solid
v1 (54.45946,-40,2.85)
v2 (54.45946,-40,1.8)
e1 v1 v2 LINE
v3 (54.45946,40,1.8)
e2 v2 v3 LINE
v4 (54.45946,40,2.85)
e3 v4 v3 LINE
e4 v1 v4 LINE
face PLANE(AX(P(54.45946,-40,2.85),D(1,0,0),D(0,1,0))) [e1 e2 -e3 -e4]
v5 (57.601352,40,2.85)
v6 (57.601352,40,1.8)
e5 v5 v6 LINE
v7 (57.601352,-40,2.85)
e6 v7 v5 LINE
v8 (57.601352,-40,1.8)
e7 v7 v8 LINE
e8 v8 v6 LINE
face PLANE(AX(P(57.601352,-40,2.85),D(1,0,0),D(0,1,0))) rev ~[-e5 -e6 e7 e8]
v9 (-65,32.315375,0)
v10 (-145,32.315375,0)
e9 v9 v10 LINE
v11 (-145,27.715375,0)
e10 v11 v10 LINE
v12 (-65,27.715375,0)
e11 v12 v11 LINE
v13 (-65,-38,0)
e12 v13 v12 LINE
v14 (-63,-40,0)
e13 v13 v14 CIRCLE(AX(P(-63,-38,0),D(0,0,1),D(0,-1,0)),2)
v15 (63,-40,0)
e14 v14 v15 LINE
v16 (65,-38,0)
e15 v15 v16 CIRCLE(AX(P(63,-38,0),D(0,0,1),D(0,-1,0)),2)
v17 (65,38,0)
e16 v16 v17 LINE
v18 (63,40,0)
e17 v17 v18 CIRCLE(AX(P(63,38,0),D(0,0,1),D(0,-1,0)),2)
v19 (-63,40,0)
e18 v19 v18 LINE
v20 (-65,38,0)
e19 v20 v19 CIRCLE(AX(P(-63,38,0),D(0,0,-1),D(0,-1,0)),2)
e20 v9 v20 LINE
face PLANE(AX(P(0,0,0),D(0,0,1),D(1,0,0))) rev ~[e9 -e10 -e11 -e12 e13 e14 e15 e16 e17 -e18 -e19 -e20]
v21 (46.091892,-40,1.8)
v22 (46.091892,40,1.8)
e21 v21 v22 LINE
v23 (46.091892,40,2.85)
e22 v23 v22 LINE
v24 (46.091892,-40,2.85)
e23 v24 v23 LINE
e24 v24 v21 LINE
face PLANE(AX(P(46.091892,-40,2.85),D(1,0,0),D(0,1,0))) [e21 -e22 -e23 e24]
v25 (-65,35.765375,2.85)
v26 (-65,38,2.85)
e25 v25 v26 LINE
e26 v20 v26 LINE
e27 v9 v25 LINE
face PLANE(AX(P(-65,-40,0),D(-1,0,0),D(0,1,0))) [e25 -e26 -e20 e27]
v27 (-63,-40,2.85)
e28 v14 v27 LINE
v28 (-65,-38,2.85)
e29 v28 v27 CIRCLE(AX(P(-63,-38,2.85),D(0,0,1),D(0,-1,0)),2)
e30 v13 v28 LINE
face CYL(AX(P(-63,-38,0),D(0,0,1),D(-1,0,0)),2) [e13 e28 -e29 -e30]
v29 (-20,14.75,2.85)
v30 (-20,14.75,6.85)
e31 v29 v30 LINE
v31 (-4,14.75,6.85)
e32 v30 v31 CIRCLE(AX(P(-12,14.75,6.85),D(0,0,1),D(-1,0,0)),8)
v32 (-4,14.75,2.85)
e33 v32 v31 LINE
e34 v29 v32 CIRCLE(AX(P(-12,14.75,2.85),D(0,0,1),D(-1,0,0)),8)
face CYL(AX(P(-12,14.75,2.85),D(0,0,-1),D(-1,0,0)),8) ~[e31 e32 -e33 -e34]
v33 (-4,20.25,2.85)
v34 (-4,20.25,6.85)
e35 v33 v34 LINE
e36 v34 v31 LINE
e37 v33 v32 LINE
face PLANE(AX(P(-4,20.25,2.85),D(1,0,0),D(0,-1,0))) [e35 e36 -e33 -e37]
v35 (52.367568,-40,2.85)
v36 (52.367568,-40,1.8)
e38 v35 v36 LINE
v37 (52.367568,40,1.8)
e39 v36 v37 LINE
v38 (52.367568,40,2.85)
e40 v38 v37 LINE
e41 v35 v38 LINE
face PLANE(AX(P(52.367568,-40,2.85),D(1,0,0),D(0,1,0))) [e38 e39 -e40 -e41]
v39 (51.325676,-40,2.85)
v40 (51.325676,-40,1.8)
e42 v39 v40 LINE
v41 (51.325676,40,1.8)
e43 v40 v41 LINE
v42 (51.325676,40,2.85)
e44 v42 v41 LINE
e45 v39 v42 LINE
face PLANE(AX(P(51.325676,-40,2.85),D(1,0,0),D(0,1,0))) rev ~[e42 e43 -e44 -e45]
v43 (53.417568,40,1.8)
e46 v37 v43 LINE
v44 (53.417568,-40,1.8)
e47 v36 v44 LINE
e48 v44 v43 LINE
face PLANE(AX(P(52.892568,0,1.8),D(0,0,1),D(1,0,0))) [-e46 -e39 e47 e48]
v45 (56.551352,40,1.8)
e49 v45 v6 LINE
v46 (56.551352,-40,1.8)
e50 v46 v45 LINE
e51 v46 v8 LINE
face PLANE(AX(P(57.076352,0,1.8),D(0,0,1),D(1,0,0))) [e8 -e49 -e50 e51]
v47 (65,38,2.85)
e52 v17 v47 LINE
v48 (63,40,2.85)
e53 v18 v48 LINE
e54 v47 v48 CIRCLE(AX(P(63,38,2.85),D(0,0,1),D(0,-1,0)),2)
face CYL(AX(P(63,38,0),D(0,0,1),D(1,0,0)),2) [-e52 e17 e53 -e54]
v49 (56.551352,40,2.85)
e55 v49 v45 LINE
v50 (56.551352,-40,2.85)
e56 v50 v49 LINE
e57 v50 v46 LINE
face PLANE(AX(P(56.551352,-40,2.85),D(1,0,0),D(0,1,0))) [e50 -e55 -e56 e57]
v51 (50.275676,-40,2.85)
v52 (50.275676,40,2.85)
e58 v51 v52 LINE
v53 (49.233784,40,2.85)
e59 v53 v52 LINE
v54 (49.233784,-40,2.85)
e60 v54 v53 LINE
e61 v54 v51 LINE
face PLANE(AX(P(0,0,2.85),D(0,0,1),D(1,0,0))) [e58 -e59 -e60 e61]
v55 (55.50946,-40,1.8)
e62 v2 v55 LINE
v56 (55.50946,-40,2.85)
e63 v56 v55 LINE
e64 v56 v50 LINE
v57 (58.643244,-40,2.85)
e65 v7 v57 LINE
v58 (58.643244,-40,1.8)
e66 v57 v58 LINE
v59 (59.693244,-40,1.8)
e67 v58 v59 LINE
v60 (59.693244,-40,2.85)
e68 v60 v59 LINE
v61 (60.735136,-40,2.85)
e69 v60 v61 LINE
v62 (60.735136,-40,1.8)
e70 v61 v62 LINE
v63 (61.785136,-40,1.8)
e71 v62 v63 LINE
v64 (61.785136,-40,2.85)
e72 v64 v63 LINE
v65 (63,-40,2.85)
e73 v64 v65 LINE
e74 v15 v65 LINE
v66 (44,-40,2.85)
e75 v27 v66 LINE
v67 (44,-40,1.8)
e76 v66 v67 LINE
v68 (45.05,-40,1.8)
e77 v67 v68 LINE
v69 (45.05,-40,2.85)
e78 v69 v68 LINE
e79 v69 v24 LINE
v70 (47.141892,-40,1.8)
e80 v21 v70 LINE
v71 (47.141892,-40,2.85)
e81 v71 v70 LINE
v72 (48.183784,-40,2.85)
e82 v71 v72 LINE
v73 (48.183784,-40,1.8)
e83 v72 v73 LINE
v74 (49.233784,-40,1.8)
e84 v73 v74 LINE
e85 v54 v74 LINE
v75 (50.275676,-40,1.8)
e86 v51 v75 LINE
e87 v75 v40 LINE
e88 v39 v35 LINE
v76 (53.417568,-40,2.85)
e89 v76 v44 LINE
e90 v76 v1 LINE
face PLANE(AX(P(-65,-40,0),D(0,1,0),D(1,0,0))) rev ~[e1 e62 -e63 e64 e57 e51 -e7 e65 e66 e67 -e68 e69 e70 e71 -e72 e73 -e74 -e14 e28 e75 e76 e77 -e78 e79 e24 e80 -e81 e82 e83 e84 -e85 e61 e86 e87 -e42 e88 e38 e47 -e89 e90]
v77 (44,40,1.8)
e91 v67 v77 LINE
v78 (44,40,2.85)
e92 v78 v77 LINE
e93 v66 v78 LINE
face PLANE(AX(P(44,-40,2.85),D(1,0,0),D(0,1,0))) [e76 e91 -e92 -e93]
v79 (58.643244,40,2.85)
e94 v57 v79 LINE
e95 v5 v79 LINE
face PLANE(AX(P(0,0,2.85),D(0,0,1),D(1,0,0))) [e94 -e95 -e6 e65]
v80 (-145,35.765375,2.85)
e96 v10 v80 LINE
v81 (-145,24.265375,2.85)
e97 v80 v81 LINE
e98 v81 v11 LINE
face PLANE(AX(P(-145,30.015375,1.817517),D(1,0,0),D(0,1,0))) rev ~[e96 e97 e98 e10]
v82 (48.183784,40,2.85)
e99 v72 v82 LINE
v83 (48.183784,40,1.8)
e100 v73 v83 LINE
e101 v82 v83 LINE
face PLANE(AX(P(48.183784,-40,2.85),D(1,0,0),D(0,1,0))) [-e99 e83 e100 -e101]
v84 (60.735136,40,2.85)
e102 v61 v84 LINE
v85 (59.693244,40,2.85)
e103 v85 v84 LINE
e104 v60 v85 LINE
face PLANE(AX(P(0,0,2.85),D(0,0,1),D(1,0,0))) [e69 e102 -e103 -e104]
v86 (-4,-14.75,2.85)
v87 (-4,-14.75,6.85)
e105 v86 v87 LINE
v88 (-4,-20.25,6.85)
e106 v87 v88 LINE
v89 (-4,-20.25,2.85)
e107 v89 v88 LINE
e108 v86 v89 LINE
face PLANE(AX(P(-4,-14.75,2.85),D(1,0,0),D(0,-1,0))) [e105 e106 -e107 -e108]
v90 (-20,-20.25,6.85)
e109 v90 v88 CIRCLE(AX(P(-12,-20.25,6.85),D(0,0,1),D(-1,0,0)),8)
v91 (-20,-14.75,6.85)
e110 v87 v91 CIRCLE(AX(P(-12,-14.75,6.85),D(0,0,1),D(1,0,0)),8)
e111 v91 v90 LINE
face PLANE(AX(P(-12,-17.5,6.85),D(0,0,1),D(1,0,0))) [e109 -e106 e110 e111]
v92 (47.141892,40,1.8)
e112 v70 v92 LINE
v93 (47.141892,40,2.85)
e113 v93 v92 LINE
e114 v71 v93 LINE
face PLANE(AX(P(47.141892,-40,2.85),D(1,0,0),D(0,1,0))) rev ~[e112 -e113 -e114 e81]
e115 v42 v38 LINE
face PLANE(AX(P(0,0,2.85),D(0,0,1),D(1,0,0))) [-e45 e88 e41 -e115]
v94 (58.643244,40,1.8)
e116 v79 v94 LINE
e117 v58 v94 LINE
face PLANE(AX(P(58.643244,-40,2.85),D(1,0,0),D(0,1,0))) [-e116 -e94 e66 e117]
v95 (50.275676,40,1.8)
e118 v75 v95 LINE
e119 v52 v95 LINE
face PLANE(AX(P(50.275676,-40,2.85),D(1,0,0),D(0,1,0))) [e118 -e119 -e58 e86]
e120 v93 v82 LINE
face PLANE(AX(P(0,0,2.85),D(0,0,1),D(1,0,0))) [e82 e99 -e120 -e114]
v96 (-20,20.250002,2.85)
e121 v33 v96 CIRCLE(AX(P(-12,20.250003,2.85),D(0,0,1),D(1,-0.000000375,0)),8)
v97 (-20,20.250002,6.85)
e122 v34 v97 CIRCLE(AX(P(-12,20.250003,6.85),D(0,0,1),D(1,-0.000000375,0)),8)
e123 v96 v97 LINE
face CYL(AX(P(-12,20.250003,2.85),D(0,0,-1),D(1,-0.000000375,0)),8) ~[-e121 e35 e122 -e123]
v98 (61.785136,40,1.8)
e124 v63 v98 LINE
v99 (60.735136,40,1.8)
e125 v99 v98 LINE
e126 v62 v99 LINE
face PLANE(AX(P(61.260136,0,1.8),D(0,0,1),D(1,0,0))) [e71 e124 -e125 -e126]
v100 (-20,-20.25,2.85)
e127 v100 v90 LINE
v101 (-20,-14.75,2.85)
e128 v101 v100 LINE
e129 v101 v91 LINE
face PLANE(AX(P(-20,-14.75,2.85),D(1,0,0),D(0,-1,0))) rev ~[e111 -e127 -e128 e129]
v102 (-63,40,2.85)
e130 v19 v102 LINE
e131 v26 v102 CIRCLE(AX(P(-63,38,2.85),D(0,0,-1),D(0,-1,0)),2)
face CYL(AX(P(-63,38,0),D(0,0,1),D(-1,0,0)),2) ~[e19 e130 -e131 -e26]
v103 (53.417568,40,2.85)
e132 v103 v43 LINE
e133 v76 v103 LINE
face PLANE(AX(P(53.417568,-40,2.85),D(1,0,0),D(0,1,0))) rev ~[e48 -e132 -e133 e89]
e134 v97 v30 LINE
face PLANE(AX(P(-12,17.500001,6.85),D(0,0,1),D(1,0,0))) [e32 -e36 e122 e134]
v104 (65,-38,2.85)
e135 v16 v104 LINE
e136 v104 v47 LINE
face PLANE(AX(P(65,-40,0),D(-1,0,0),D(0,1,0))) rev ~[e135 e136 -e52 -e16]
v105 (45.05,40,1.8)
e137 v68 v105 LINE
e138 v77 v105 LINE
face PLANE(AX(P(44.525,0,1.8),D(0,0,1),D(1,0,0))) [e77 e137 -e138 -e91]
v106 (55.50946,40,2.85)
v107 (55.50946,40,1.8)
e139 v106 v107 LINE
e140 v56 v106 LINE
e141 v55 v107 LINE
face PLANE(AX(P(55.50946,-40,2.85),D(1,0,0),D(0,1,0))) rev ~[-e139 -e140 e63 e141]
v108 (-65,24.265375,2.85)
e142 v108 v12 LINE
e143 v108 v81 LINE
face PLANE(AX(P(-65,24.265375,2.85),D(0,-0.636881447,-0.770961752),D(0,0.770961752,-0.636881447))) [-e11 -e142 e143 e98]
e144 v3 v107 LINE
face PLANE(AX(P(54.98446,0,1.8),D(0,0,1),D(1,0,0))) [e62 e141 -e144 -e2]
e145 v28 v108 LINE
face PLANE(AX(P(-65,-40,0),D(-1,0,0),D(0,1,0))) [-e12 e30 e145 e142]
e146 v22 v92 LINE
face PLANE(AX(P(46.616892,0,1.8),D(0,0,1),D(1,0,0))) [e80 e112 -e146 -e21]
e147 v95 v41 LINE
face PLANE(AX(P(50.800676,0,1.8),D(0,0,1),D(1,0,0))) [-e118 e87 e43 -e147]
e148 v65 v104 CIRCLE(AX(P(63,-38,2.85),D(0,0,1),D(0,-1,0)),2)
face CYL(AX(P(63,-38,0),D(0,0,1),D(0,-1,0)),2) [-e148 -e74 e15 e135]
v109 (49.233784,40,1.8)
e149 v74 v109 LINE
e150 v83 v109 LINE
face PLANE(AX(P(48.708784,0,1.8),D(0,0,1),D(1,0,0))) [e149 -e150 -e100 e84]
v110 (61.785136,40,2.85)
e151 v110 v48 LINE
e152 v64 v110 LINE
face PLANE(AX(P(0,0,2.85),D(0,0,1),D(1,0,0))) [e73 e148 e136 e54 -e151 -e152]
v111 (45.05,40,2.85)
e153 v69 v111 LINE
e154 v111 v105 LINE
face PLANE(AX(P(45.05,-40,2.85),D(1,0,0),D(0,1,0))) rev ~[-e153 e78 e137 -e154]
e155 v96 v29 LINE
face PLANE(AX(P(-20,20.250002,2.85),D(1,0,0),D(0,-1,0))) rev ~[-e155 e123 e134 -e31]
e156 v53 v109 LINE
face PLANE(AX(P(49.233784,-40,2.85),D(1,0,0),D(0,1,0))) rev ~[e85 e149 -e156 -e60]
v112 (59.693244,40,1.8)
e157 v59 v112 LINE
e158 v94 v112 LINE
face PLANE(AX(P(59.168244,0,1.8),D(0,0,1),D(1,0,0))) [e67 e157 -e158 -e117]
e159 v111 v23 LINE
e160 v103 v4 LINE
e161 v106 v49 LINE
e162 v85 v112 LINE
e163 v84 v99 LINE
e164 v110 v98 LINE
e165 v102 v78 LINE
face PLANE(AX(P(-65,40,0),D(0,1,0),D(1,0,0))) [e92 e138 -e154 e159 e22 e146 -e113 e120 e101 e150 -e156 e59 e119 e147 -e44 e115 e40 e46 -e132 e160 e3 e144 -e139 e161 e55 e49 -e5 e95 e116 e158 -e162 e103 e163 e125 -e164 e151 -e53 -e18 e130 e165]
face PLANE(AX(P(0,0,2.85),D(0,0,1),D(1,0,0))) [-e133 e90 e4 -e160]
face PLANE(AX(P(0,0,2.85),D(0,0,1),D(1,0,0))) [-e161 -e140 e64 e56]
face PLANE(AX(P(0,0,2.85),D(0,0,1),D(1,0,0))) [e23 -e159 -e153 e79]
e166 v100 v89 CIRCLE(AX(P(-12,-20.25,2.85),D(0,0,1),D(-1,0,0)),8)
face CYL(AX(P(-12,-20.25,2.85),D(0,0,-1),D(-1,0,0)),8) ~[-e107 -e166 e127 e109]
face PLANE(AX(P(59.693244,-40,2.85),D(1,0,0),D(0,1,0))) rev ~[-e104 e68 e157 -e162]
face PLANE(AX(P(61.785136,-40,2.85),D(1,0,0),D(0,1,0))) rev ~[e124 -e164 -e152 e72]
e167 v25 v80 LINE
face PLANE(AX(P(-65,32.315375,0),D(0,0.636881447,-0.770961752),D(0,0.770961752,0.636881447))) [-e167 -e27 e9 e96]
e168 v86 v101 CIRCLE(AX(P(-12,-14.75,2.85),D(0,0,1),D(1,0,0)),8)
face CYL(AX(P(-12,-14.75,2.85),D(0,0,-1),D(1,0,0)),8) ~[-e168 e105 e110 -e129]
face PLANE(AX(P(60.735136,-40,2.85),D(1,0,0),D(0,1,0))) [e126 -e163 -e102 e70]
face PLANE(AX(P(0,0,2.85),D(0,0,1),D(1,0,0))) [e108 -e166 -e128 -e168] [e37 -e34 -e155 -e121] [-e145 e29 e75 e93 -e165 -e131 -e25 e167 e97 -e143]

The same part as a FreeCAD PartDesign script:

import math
import FreeCAD as App
import Part
import Sketcher
from FreeCAD import Vector
Q = App.Units.Quantity


def edges_at(feature, points):
    """Names of the edges that pass closest to the given points."""
    edges = feature.Shape.Edges
    near = lambda p: min(range(len(edges)), key=lambda i: edges[i].distToShape(Part.Vertex(*p))[0])
    return sorted({f"Edge{near(p) + 1}" for p in points})


def add_polygon(sketch, points):
    """Adds a closed chain of lines whose ends are joined by coincident constraints."""
    first, n = sketch.GeometryCount, len(points)
    for a, b in zip(points, points[1:] + points[:1]):
        sketch.addGeometry(Part.LineSegment(App.Vector(*a, 0), App.Vector(*b, 0)), False)
    for i in range(n):
        sketch.addConstraint(Sketcher.Constraint("Coincident", first + i, 2, first + (i + 1) % n, 1))

doc = App.newDocument("Part")
params = doc.addObject("Spreadsheet::Sheet", "Params")
for row, (alias, value) in enumerate([
    ("sketch1_width", "130 mm"),
    ("sketch1_height", "80 mm"),
    ("pad1_length", "2.85 mm"),
    ("sketch2_radius", "8 mm"),
    ("sketch2_height", "5.5 mm"),
    ("pad2_length", "4 mm"),
    ("sketch3_width", "11.5 mm"),
    ("sketch3_width2", "4.6 mm"),
    ("pad3_length", "80 mm"),
    ("fillet_radius", "2 mm"),
    ("sketch4_height", "80 mm"),
    ("sketch4_width", "1.05 mm"),
    ("pocket1_length", "1.05 mm"),
], start=1):
    params.set(f"A{row}", alias)
    params.set(f"B{row}", "=" + value)
    params.setAlias(f"B{row}", alias)

body = doc.addObject("PartDesign::Body", "Body")

sketch1 = doc.addObject("Sketcher::SketchObject", "Sketch")
body.addObject(sketch1)
sketch1.AttachmentSupport = (doc.XY_Plane, [""])
sketch1.MapMode = "FlatFace"
add_polygon(sketch1, [(-65, 40), (-65, -40), (65, -40), (65, 40)])
sketch1.addConstraint([
    Sketcher.Constraint("Vertical", 0),
    Sketcher.Constraint("Horizontal", 1),
    Sketcher.Constraint("Vertical", 2),
    Sketcher.Constraint("Horizontal", 3),
    Sketcher.Constraint("Symmetric", 0, 2, 2, 2, -1, 1),
    Sketcher.Constraint("DistanceX", 1, 1, 1, 2, Q("130 mm")),
    Sketcher.Constraint("DistanceY", 0, 2, 0, 1, Q("80 mm")),
])
sketch1.setExpression("Constraints[9]", "Params.sketch1_width")
sketch1.setExpression("Constraints[10]", "Params.sketch1_height")
pad1 = doc.addObject("PartDesign::Pad", "Pad")
body.addObject(pad1)
pad1.Profile = sketch1
pad1.setExpression("Length", "Params.pad1_length")

sketch2 = doc.addObject("Sketcher::SketchObject", "Sketch001")
body.addObject(sketch2)
sketch2.AttachmentSupport = (doc.XY_Plane, [""])
sketch2.MapMode = "FlatFace"
sketch2.AttachmentOffset = App.Placement(Vector(0, 0, 2.85), App.Rotation())
sketch2.addGeometry([
    Part.ArcOfCircle(Part.Circle(Vector(-12, 15, 0), Vector(0, 0, 1), 8), math.radians(180), math.radians(360)),
    Part.LineSegment(Vector(-4, 15, 0), Vector(-4, 20, 0)),
    Part.ArcOfCircle(Part.Circle(Vector(-12, 20, 0), Vector(0, 0, 1), 8), math.radians(0), math.radians(180)),
    Part.LineSegment(Vector(-20, 20, 0), Vector(-20, 15, 0)),
    Part.ArcOfCircle(Part.Circle(Vector(-12, -20, 0), Vector(0, 0, 1), 8), math.radians(180), math.radians(360)),
    Part.LineSegment(Vector(-4, -20, 0), Vector(-4, -15, 0)),
    Part.ArcOfCircle(Part.Circle(Vector(-12, -15, 0), Vector(0, 0, 1), 8), math.radians(0), math.radians(180)),
    Part.LineSegment(Vector(-20, -15, 0), Vector(-20, -20, 0)),
], False)
sketch2.addConstraint([
    Sketcher.Constraint("Tangent", 0, 2, 1, 1),
    Sketcher.Constraint("Tangent", 1, 2, 2, 1),
    Sketcher.Constraint("Tangent", 2, 2, 3, 1),
    Sketcher.Constraint("Tangent", 3, 2, 0, 1),
    Sketcher.Constraint("Tangent", 4, 2, 5, 1),
    Sketcher.Constraint("Tangent", 5, 2, 6, 1),
    Sketcher.Constraint("Tangent", 6, 2, 7, 1),
    Sketcher.Constraint("Tangent", 7, 2, 4, 1),
    Sketcher.Constraint("Vertical", 1),
    Sketcher.Constraint("Vertical", 3),
    Sketcher.Constraint("Vertical", 5),
    Sketcher.Constraint("Vertical", 7),
    Sketcher.Constraint("Equal", 2, 4),
    Sketcher.Constraint("Symmetric", 2, 3, 4, 3, -1),
    Sketcher.Constraint("Equal", 3, 5),
    Sketcher.Constraint("Radius", 0, Q("8 mm")),
    Sketcher.Constraint("DistanceY", 1, 1, 1, 2, Q("5.5 mm")),
    Sketcher.Constraint("DistanceX", 0, 3, -1, 1, Q("12 mm")),
    Sketcher.Constraint("DistanceY", 4, 3, 0, 3, Q("35 mm")),
])
sketch2.setExpression("Constraints[15]", "Params.sketch2_radius")
sketch2.setExpression("Constraints[16]", "Params.sketch2_height")
pad2 = doc.addObject("PartDesign::Pad", "Pad001")
body.addObject(pad2)
pad2.Profile = sketch2
pad2.setExpression("Length", "Params.pad2_length")

sketch3 = doc.addObject("Sketcher::SketchObject", "Sketch002")
body.addObject(sketch3)
sketch3.AttachmentSupport = (doc.YZ_Plane, [""])
sketch3.MapMode = "FlatFace"
sketch3.AttachmentOffset = App.Placement(Vector(0, 0, -65), App.Rotation())
add_polygon(sketch3, [(24.3, 2.9), (35.8, 2.9), (32.3, 0), (27.7, 0)])
sketch3.addConstraint([
    Sketcher.Constraint("Horizontal", 0),
    Sketcher.Constraint("Horizontal", 2),
    Sketcher.Constraint("PointOnObject", 1, 2, -1),
    Sketcher.Constraint("Equal", 1, 3),
    Sketcher.Constraint("DistanceX", 0, 1, 0, 2, Q("11.5 mm")),
    Sketcher.Constraint("DistanceX", 2, 2, 2, 1, Q("4.6 mm")),
    Sketcher.Constraint("DistanceY", -1, 1, 0, 2, Q("2.85 mm")),
    Sketcher.Constraint("DistanceX", -1, 1, 0, 2, Q("35.765375 mm")),
])
sketch3.setExpression("Constraints[8]", "Params.sketch3_width")
sketch3.setExpression("Constraints[9]", "Params.sketch3_width2")
pad3 = doc.addObject("PartDesign::Pad", "Pad002")
body.addObject(pad3)
pad3.Profile = sketch3
pad3.setExpression("Length", "Params.pad3_length")
pad3.Reversed = True
doc.recompute()

fillet = doc.addObject("PartDesign::Fillet", "Fillet")
body.addObject(fillet)
fillet.Base = (pad3, edges_at(pad3, [
    (-65, -40, 1.425),
    (65, -40, 1.425),
    (65, 40, 1.425),
    (-65, 40, 1.425),
]))
fillet.setExpression("Radius", "Params.fillet_radius")

sketch4 = doc.addObject("Sketcher::SketchObject", "Sketch003")
body.addObject(sketch4)
sketch4.AttachmentSupport = (doc.XY_Plane, [""])
sketch4.MapMode = "FlatFace"
sketch4.AttachmentOffset = App.Placement(Vector(0, 0, 2.85), App.Rotation())
add_polygon(sketch4, [(44, 40), (44, -40), (45, -40), (45, 40)])
add_polygon(sketch4, [(46.1, 40), (46.1, -40), (47.1, -40), (47.1, 40)])
add_polygon(sketch4, [(48.2, 40), (48.2, -40), (49.2, -40), (49.2, 40)])
add_polygon(sketch4, [(50.3, 40), (50.3, -40), (51.3, -40), (51.3, 40)])
add_polygon(sketch4, [(52.4, 40), (52.4, -40), (53.4, -40), (53.4, 40)])
add_polygon(sketch4, [(54.5, 40), (54.5, -40), (55.5, -40), (55.5, 40)])
add_polygon(sketch4, [(56.6, 40), (56.6, -40), (57.6, -40), (57.6, 40)])
add_polygon(sketch4, [(58.6, 40), (58.6, -40), (59.7, -40), (59.7, 40)])
add_polygon(sketch4, [(60.7, 40), (60.7, -40), (61.8, -40), (61.8, 40)])
sketch4.addConstraint([
    Sketcher.Constraint("Vertical", 0),
    Sketcher.Constraint("Horizontal", 1),
    Sketcher.Constraint("Vertical", 2),
    Sketcher.Constraint("Horizontal", 3),
    Sketcher.Constraint("Vertical", 4),
    Sketcher.Constraint("Horizontal", 5),
    Sketcher.Constraint("Vertical", 6),
    Sketcher.Constraint("Horizontal", 7),
    Sketcher.Constraint("Vertical", 8),
    Sketcher.Constraint("Horizontal", 9),
    Sketcher.Constraint("Vertical", 10),
    Sketcher.Constraint("Horizontal", 11),
    Sketcher.Constraint("Vertical", 12),
    Sketcher.Constraint("Horizontal", 13),
    Sketcher.Constraint("Vertical", 14),
    Sketcher.Constraint("Horizontal", 15),
    Sketcher.Constraint("Vertical", 16),
    Sketcher.Constraint("Horizontal", 17),
    Sketcher.Constraint("Vertical", 18),
    Sketcher.Constraint("Horizontal", 19),
    Sketcher.Constraint("Vertical", 20),
    Sketcher.Constraint("Horizontal", 21),
    Sketcher.Constraint("Vertical", 22),
    Sketcher.Constraint("Horizontal", 23),
    Sketcher.Constraint("Vertical", 24),
    Sketcher.Constraint("Horizontal", 25),
    Sketcher.Constraint("Vertical", 26),
    Sketcher.Constraint("Horizontal", 27),
    Sketcher.Constraint("Vertical", 28),
    Sketcher.Constraint("Horizontal", 29),
    Sketcher.Constraint("Vertical", 30),
    Sketcher.Constraint("Horizontal", 31),
    Sketcher.Constraint("Vertical", 32),
    Sketcher.Constraint("Horizontal", 33),
    Sketcher.Constraint("Vertical", 34),
    Sketcher.Constraint("Horizontal", 35),
    Sketcher.Constraint("Horizontal", 1, 2, 4, 2),
    Sketcher.Constraint("Horizontal", 3, 2, 6, 2),
    Sketcher.Constraint("Horizontal", 5, 2, 8, 2),
    Sketcher.Constraint("Horizontal", 7, 2, 10, 2),
    Sketcher.Constraint("Horizontal", 9, 2, 12, 2),
    Sketcher.Constraint("Horizontal", 11, 2, 14, 2),
    Sketcher.Constraint("Horizontal", 13, 2, 16, 2),
    Sketcher.Constraint("Horizontal", 15, 2, 18, 2),
    Sketcher.Constraint("Horizontal", 17, 2, 20, 2),
    Sketcher.Constraint("Horizontal", 19, 2, 22, 2),
    Sketcher.Constraint("Horizontal", 21, 2, 24, 2),
    Sketcher.Constraint("Horizontal", 23, 2, 26, 2),
    Sketcher.Constraint("Horizontal", 25, 2, 28, 2),
    Sketcher.Constraint("Horizontal", 27, 2, 30, 2),
    Sketcher.Constraint("Horizontal", 29, 2, 32, 2),
    Sketcher.Constraint("Horizontal", 31, 2, 34, 2),
    Sketcher.Constraint("Equal", 3, 5),
    Sketcher.Constraint("Equal", 7, 9),
    Sketcher.Constraint("Equal", 11, 13),
    Sketcher.Constraint("Equal", 15, 17),
    Sketcher.Constraint("Equal", 19, 21),
    Sketcher.Constraint("Equal", 23, 25),
    Sketcher.Constraint("Equal", 27, 29),
    Sketcher.Constraint("Equal", 31, 33),
    Sketcher.Constraint("DistanceY", 0, 2, 0, 1, Q("80 mm")),
    Sketcher.Constraint("DistanceX", -1, 1, 0, 2, Q("44 mm")),
    Sketcher.Constraint("DistanceY", 0, 2, -1, 1, Q("40 mm")),
    Sketcher.Constraint("DistanceX", 1, 1, 1, 2, Q("1.05 mm")),
    Sketcher.Constraint("DistanceX", -1, 1, 17, 2, Q("53.417568 mm")),
    Sketcher.Constraint("DistanceX", -1, 1, 20, 2, Q("54.45946 mm")),
    Sketcher.Constraint("DistanceX", 0, 2, 5, 2, Q("3.141892 mm")),
    Sketcher.Constraint("DistanceX", 4, 2, 9, 2, Q("3.141892 mm")),
    Sketcher.Constraint("DistanceX", 9, 2, 12, 2, Q("1.041892 mm")),
    Sketcher.Constraint("DistanceX", 20, 2, 25, 2, Q("3.141892 mm")),
    Sketcher.Constraint("DistanceX", 24, 2, 29, 2, Q("3.141892 mm")),
    Sketcher.Constraint("DistanceX", 29, 2, 32, 2, Q("1.041892 mm")),
])
sketch4.setExpression("Constraints[96]", "Params.sketch4_height")
sketch4.setExpression("Constraints[99]", "Params.sketch4_width")
pocket1 = doc.addObject("PartDesign::Pocket", "Pocket")
body.addObject(pocket1)
pocket1.Profile = sketch4
pocket1.setExpression("Length", "Params.pocket1_length")

doc.recompute()
